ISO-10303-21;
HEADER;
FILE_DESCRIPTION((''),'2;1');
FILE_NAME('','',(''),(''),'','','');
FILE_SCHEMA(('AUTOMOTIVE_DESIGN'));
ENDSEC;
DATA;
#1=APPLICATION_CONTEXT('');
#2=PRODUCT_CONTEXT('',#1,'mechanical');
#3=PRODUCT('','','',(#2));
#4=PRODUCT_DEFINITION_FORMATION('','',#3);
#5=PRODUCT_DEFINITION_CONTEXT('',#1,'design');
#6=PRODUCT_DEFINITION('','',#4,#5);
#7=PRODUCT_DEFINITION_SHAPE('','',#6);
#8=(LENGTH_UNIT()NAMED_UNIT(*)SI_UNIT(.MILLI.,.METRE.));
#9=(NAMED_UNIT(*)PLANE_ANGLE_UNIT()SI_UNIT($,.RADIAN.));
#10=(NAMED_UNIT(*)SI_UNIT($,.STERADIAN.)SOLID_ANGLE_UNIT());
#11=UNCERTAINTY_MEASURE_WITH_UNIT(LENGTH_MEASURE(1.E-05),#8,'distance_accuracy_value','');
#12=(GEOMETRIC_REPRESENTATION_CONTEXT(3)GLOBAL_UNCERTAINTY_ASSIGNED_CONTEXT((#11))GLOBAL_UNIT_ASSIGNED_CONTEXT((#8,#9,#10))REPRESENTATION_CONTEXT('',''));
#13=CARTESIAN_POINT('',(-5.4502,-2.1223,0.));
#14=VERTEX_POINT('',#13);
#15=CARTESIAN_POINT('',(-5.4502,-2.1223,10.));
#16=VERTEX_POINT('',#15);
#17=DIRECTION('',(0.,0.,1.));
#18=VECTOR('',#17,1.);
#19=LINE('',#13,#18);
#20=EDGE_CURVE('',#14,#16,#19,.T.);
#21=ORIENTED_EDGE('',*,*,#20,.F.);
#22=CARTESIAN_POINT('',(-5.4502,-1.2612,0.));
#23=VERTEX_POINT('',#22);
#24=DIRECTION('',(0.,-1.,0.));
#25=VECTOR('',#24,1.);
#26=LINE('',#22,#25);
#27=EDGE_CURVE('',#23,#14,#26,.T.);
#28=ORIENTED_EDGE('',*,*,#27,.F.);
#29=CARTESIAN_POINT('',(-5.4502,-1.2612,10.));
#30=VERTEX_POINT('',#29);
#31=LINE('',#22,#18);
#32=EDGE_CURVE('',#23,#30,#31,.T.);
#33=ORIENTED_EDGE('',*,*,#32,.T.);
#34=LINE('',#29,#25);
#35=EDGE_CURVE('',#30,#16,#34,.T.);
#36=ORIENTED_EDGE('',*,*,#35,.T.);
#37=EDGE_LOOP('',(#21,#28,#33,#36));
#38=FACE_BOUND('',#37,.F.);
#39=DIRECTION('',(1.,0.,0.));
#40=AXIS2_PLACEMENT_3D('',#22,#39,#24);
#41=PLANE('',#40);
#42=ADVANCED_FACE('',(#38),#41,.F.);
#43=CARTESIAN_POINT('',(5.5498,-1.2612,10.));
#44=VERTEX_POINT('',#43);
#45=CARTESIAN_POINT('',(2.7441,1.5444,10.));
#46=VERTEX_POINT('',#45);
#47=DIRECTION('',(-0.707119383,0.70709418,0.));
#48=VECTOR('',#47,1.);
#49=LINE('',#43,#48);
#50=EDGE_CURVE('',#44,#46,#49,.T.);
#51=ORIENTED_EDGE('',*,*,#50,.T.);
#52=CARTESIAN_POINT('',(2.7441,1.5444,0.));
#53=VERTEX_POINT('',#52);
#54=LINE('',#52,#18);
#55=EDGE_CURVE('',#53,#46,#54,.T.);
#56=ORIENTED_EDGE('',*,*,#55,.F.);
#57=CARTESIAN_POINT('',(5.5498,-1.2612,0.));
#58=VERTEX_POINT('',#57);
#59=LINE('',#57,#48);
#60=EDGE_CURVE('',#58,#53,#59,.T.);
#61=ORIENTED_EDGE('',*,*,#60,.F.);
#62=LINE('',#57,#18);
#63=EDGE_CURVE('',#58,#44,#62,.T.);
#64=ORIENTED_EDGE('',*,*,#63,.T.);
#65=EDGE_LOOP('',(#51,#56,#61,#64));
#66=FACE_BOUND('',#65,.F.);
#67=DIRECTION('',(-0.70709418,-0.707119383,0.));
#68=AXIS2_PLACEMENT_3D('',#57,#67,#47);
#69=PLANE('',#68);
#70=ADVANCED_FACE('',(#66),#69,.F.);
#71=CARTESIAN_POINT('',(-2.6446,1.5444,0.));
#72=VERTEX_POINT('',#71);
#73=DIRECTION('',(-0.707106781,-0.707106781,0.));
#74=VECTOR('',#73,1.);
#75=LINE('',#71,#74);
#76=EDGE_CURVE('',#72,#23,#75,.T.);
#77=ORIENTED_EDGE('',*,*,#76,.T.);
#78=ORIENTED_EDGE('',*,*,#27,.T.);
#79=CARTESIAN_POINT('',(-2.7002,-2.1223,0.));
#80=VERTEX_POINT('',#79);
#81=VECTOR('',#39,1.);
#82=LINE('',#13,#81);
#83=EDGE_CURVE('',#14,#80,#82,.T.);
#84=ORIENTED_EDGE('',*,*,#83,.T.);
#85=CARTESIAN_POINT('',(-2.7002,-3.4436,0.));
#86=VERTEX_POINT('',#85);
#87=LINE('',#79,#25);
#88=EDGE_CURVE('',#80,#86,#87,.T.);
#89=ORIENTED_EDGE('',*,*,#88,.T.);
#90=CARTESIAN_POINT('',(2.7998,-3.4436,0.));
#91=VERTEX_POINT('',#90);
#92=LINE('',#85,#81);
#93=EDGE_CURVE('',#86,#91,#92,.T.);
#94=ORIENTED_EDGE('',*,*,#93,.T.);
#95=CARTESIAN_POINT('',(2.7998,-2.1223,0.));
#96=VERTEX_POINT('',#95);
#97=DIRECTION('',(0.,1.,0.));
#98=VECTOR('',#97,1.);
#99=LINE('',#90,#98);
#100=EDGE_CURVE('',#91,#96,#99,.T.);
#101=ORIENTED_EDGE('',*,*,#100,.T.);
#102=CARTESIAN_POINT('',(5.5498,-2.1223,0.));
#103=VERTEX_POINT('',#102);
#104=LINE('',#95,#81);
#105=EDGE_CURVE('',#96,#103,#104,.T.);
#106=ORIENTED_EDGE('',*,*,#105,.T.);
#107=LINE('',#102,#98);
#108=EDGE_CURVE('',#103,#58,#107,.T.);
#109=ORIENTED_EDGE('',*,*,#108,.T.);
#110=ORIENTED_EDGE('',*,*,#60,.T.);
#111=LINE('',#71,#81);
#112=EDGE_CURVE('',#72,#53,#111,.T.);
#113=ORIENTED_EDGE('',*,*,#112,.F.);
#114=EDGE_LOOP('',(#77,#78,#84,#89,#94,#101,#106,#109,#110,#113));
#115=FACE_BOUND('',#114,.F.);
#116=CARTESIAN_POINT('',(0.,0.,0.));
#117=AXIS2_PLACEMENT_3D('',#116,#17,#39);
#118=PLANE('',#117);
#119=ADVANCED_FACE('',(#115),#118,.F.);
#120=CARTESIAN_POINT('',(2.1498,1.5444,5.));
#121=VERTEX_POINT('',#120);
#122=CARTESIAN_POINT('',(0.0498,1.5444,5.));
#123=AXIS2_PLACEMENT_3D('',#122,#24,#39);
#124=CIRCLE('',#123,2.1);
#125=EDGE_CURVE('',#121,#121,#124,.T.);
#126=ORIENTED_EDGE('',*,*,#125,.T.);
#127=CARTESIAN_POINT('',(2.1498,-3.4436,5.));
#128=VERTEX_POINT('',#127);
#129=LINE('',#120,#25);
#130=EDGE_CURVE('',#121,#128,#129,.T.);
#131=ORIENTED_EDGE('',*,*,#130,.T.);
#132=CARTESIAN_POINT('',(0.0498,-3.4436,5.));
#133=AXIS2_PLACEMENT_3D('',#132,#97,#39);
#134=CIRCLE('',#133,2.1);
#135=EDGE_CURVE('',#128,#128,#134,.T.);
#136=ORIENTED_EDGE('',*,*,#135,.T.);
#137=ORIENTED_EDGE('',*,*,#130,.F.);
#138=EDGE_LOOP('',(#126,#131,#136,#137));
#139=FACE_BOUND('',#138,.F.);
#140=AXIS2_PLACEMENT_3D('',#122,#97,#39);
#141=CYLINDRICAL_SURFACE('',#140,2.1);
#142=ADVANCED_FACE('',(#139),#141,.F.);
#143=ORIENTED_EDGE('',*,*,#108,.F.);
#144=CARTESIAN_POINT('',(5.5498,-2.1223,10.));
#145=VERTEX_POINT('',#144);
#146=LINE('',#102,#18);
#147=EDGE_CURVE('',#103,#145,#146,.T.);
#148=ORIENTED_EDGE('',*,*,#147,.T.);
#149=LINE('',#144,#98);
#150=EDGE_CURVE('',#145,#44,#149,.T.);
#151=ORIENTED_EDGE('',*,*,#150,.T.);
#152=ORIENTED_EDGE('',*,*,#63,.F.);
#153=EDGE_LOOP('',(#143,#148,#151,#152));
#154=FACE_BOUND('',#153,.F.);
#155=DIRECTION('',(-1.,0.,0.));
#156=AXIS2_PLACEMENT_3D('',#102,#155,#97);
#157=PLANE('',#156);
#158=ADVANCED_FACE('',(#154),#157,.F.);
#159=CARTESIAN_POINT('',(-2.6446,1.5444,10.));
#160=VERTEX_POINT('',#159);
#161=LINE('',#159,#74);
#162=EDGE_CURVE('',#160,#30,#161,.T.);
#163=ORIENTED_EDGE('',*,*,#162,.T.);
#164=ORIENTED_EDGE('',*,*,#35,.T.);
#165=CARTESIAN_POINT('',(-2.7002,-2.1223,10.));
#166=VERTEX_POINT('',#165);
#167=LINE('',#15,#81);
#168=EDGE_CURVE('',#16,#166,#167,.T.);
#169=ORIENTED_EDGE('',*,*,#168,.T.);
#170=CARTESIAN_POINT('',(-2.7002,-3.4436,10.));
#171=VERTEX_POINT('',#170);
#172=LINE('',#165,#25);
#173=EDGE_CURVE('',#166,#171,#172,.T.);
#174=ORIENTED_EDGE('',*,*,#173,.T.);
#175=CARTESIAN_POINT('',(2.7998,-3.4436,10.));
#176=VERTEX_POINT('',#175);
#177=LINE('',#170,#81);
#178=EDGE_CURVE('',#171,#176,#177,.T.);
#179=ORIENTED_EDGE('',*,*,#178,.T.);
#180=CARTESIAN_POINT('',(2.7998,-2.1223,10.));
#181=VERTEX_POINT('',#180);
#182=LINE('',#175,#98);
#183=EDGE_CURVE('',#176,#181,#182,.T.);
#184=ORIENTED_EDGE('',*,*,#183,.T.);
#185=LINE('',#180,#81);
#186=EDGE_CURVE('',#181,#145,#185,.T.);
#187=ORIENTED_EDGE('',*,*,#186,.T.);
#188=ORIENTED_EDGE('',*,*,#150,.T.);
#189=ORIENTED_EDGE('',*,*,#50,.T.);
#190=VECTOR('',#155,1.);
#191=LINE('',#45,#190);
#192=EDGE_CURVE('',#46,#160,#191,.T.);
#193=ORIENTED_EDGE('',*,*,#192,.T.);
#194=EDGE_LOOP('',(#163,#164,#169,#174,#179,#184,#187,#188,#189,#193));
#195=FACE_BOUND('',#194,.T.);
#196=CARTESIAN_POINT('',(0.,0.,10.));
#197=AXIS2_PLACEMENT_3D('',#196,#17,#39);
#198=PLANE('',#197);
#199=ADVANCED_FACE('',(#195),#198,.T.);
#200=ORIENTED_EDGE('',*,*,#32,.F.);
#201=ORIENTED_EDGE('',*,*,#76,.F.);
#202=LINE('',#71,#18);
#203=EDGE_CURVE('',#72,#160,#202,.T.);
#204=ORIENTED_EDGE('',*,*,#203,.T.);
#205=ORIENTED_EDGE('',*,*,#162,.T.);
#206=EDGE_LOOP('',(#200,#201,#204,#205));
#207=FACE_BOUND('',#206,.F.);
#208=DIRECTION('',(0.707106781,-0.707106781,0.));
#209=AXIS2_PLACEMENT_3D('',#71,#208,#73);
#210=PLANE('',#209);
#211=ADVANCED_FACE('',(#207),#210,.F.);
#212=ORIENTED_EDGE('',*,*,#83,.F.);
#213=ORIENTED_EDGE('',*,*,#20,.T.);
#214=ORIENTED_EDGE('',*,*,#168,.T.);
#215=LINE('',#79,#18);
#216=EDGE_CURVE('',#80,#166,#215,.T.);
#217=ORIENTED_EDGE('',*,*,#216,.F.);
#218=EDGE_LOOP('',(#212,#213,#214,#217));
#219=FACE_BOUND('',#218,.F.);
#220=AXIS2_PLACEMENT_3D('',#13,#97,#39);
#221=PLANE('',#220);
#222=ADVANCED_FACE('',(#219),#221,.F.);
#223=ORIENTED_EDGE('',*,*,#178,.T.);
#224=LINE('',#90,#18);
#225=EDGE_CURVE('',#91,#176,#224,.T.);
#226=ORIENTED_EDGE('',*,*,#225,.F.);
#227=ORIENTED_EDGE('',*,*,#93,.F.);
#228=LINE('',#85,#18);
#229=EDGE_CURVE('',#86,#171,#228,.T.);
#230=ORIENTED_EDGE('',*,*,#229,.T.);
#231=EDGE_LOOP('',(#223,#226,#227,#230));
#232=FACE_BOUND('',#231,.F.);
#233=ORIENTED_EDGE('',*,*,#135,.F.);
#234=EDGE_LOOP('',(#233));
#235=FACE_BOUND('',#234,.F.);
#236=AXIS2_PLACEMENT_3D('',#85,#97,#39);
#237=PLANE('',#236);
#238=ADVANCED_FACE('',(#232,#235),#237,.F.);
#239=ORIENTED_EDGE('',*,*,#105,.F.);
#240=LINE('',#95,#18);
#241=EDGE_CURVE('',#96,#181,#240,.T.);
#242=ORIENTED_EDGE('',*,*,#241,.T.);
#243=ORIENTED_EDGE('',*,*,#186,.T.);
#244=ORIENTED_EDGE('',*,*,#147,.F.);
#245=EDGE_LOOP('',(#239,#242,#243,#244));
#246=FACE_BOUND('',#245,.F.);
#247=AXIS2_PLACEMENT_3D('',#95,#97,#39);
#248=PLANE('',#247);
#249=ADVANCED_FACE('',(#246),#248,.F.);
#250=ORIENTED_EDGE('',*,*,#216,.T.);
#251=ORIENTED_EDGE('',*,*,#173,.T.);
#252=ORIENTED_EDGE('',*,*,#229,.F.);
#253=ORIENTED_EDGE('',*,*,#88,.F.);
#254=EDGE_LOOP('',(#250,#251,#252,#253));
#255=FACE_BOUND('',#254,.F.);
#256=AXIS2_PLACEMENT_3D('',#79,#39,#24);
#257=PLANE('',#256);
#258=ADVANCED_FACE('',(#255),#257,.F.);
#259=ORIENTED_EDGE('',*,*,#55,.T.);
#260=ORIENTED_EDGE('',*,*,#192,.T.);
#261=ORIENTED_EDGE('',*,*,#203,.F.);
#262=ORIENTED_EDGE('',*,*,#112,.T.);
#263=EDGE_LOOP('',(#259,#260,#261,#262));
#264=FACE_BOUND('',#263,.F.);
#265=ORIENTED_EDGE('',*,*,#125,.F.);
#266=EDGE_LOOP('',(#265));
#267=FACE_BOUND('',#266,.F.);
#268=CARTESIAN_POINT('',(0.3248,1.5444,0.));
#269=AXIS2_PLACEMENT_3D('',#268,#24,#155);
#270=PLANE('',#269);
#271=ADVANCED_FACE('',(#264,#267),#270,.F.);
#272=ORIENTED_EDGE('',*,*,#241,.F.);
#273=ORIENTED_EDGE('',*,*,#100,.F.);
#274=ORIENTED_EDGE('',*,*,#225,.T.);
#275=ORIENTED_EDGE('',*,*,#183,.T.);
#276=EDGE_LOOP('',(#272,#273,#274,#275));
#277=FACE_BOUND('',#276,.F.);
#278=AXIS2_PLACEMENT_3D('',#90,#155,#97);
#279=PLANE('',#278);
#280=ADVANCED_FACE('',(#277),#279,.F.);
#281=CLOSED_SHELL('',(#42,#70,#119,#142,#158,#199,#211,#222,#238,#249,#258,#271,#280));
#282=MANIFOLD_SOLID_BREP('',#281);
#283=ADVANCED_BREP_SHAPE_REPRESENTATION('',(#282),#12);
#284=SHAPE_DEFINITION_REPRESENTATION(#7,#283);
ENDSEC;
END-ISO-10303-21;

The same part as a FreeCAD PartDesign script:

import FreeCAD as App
import Part
import Sketcher
from FreeCAD import Vector


def add_polygon(sketch, points):
    """Adds a closed chain of lines whose ends are joined by coincident constraints."""
    first, n = sketch.GeometryCount, len(points)
    for a, b in zip(points, points[1:] + points[:1]):
        sketch.addGeometry(Part.LineSegment(App.Vector(*a, 0), App.Vector(*b, 0)), False)
    for i in range(n):
        sketch.addConstraint(Sketcher.Constraint("Coincident", first + i, 2, first + (i + 1) % n, 1))

doc = App.newDocument("Part")
params = doc.addObject("Spreadsheet::Sheet", "Params")
for row, (alias, value) in enumerate([
    ("sketch1_width", "5.5 mm"),
    ("sketch1_width2", "2.75 mm"),
    ("pad1_length", "10 mm"),
    ("sketch2_diameter", "4.2 mm"),
    ("pocket1_length", "4.988 mm"),
], start=1):
    params.set(f"A{row}", alias)
    params.set(f"B{row}", "=" + value)
    params.setAlias(f"B{row}", alias)

body = doc.addObject("PartDesign::Body", "Body")

# Sketch on XY plane
sketch1 = doc.addObject("Sketcher::SketchObject", "Sketch")
body.addObject(sketch1)
sketch1.AttachmentSupport = (doc.XY_Plane, [""])
sketch1.MapMode = "FlatFace"
add_polygon(sketch1, [(-5.5, -2.1), (-2.7, -2.1), (-2.7, -3.4), (2.8, -3.4), (2.8, -2.1), (5.5, -2.1), (5.5, -1.3), (2.7, 1.5), (-2.6, 1.5), (-5.5, -1.3)])  # lines 0-9
sketch1.addConstraint(Sketcher.Constraint("Horizontal", 0))
sketch1.addConstraint(Sketcher.Constraint("Vertical", 1))
sketch1.addConstraint(Sketcher.Constraint("Horizontal", 2))
sketch1.addConstraint(Sketcher.Constraint("Vertical", 3))
sketch1.addConstraint(Sketcher.Constraint("Horizontal", 4))
sketch1.addConstraint(Sketcher.Constraint("Vertical", 5))
sketch1.addConstraint(Sketcher.Constraint("Horizontal", 7))
sketch1.addConstraint(Sketcher.Constraint("Vertical", 9))
sketch1.addConstraint(Sketcher.Constraint("Perpendicular", 6, 8))
sketch1.addConstraint(Sketcher.Constraint("Horizontal", 0, 2, 3, 2))
sketch1.addConstraint(Sketcher.Constraint("Horizontal", 5, 2, 8, 2))
sketch1.addConstraint(Sketcher.Constraint("Equal", 0, 4))
sketch1.addConstraint(Sketcher.Constraint("Equal", 6, 8))
sketch1.addConstraint(Sketcher.Constraint("DistanceX", 2, 1, 2, 2, 5.5))
sketch1.addConstraint(Sketcher.Constraint("DistanceX", 0, 1, 0, 2, 2.75))
sketch1.addConstraint(Sketcher.Constraint("DistanceY", -1, 1, 6, 2, 1.5444))
sketch1.addConstraint(Sketcher.Constraint("DistanceY", 5, 1, 5, 2, 0.861))
sketch1.addConstraint(Sketcher.Constraint("DistanceX", 7, 2, 7, 1, 5.3887))
sketch1.addConstraint(Sketcher.Constraint("DistanceY", 1, 2, 1, 1, 1.3213))
sketch1.addConstraint(Sketcher.Constraint("DistanceX", -1, 1, 6, 2, 2.744))
sketch1.setExpression("Constraints[23]", "Params.sketch1_width")
sketch1.setExpression("Constraints[24]", "Params.sketch1_width2")
pad1 = doc.addObject("PartDesign::Pad", "Pad")
body.addObject(pad1)
pad1.Profile = sketch1
pad1.setExpression("Length", "Params.pad1_length")

# Sketch on XZ plane
sketch2 = doc.addObject("Sketcher::SketchObject", "Sketch001")
body.addObject(sketch2)
sketch2.AttachmentSupport = (doc.XZ_Plane, [""])
sketch2.MapMode = "FlatFace"
sketch2.AttachmentOffset = App.Placement(Vector(0, 0, -1.5444), App.Rotation())
sketch2.addGeometry(Part.Circle(Vector(0, 5, 0), Vector(0, 0, 1), 2.1), False)
sketch2.addConstraint(Sketcher.Constraint("Diameter", 0, 4.2))
sketch2.addConstraint(Sketcher.Constraint("DistanceY", -1, 1, 0, 3, 5.0))
sketch2.addConstraint(Sketcher.Constraint("DistanceX", -1, 1, 0, 3, 0.0498))
sketch2.setExpression("Constraints[0]", "Params.sketch2_diameter")
pocket1 = doc.addObject("PartDesign::Pocket", "Pocket")
body.addObject(pocket1)
pocket1.Profile = sketch2
pocket1.setExpression("Length", "Params.pocket1_length")
pocket1.Reversed = True

doc.recompute()
